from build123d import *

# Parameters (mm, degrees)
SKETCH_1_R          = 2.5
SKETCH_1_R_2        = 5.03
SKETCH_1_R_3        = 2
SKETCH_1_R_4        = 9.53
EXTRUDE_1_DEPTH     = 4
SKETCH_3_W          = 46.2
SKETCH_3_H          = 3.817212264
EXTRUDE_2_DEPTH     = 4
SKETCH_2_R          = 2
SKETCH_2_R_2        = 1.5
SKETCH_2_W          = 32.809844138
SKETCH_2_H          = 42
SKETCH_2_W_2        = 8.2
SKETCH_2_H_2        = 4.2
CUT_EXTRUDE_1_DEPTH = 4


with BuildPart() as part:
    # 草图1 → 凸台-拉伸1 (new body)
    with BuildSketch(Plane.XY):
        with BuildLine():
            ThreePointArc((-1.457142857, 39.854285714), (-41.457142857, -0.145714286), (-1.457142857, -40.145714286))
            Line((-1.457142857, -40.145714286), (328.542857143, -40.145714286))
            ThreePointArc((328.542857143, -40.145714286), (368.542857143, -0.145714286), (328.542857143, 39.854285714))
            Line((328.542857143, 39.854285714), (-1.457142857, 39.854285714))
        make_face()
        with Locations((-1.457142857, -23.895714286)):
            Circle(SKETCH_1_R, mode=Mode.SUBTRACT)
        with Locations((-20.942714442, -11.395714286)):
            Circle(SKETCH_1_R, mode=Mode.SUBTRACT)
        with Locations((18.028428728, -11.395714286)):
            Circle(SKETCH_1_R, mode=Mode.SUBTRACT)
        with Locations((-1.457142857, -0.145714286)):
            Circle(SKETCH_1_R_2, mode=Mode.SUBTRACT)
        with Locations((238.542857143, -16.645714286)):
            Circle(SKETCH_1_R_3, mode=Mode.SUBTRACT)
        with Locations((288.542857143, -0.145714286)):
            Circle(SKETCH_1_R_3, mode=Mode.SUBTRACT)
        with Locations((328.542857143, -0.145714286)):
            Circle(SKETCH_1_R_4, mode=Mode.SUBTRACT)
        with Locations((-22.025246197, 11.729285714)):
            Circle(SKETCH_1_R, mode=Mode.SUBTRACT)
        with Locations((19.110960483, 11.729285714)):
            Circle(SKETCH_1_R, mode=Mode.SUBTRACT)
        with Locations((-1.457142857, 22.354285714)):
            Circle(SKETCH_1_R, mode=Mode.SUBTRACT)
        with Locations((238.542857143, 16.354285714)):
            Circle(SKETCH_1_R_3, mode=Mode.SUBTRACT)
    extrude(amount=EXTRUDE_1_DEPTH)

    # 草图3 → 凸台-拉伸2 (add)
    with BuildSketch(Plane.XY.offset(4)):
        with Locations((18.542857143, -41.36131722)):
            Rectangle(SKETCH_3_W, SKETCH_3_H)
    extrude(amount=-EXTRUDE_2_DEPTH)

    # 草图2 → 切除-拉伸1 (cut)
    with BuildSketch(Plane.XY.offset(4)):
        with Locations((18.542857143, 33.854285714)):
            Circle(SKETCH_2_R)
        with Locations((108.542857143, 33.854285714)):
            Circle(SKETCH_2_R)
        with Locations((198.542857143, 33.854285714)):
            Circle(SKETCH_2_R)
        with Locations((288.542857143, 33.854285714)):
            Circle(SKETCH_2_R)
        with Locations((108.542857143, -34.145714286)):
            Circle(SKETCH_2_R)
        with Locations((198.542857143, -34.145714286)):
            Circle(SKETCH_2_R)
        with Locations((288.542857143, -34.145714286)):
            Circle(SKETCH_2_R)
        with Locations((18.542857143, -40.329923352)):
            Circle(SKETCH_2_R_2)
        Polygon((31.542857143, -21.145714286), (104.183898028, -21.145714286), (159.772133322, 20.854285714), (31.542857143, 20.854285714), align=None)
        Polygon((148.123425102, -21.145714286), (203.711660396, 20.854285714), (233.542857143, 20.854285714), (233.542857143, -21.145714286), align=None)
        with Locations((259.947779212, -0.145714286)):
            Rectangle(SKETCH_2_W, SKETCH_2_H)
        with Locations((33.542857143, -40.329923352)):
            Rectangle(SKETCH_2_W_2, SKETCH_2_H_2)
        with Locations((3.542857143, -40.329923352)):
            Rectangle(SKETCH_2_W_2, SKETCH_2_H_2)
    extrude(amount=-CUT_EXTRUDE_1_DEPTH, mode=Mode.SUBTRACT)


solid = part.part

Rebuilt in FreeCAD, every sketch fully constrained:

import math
import FreeCAD as App
import Part
import Sketcher
Q = App.Units.Quantity


def add_polygon(sketch, points):
    """Adds a closed chain of lines whose ends are joined by coincident constraints."""
    first, n = sketch.GeometryCount, len(points)
    for a, b in zip(points, points[1:] + points[:1]):
        sketch.addGeometry(Part.LineSegment(App.Vector(*a, 0), App.Vector(*b, 0)), False)
    for i in range(n):
        sketch.addConstraint(Sketcher.Constraint("Coincident", first + i, 2, first + (i + 1) % n, 1))

doc = App.newDocument("Part")
params = doc.addObject("Spreadsheet::Sheet", "Params")
for row, (alias, value) in enumerate([
    ("sketch1_diameter", "5 mm"),
    ("sketch1_diameter2", "4 mm"),
    ("sketch1_radius", "40 mm"),
    ("sketch1_diameter3", "10.06 mm"),
    ("sketch1_diameter4", "19.06 mm"),
    ("pad1_length", "4 mm"),
    ("sketch2_width", "46.2 mm"),
    ("pad2_length", "4 mm"),
    ("sketch3_diameter", "4 mm"),
    ("sketch3_diameter2", "3 mm"),
    ("sketch3_height", "42 mm"),
    ("sketch3_width", "8.2 mm"),
    ("sketch3_height2", "4.2 mm"),
    ("pocket1_length", "4 mm"),
], start=1):
    params.set(f"A{row}", alias)
    params.set(f"B{row}", "=" + value)
    params.setAlias(f"B{row}", alias)

body = doc.addObject("PartDesign::Body", "Body")

# Sketch on XY plane
sketch1 = body.newObject("Sketcher::SketchObject", "Sketch")
sketch1.AttachmentSupport = (doc.getObject("XY_Plane"), [""])
sketch1.MapMode = "FlatFace"
sketch1.addGeometry([
    Part.ArcOfCircle(Part.Circle(App.Vector(-1.5, -0.1, 0), App.Vector(0, 0, 1), 40), math.radians(90), math.radians(270)),  # 0
    Part.LineSegment(App.Vector(-1.5, -40.1, 0), App.Vector(328.5, -40.1, 0)),  # 1
    Part.ArcOfCircle(Part.Circle(App.Vector(328.5, -0.1, 0), App.Vector(0, 0, 1), 40), math.radians(-90), math.radians(90)),  # 2
    Part.LineSegment(App.Vector(328.5, 39.9, 0), App.Vector(-1.5, 39.9, 0)),  # 3
    Part.Circle(App.Vector(-1.5, -23.9, 0), App.Vector(0, 0, 1), 2.5),  # 4
    Part.Circle(App.Vector(-20.9, -11.4, 0), App.Vector(0, 0, 1), 2.5),  # 5
    Part.Circle(App.Vector(18, -11.4, 0), App.Vector(0, 0, 1), 2.5),  # 6
    Part.Circle(App.Vector(238.5, -16.6, 0), App.Vector(0, 0, 1), 2),  # 7
    Part.Circle(App.Vector(-1.5, -0.1, 0), App.Vector(0, 0, 1), 5),  # 8
    Part.Circle(App.Vector(-22, 11.7, 0), App.Vector(0, 0, 1), 2.5),  # 9
    Part.Circle(App.Vector(19.1, 11.7, 0), App.Vector(0, 0, 1), 2.5),  # 10
    Part.Circle(App.Vector(-1.5, 22.4, 0), App.Vector(0, 0, 1), 2.5),  # 11
    Part.Circle(App.Vector(288.5, -0.1, 0), App.Vector(0, 0, 1), 2),  # 12
    Part.Circle(App.Vector(328.5, -0.1, 0), App.Vector(0, 0, 1), 9.5),  # 13
    Part.Circle(App.Vector(238.5, 16.4, 0), App.Vector(0, 0, 1), 2),  # 14
], False)
sketch1.addConstraint([
    Sketcher.Constraint("Tangent", 0, 2, 1, 1),
    Sketcher.Constraint("Tangent", 1, 2, 2, 1),
    Sketcher.Constraint("Tangent", 2, 2, 3, 1),
    Sketcher.Constraint("Tangent", 3, 2, 0, 1),
    Sketcher.Constraint("Horizontal", 1),
    Sketcher.Constraint("Horizontal", 3),
    Sketcher.Constraint("Coincident", 8, 3, 0, 3),
    Sketcher.Constraint("Coincident", 13, 3, 2, 3),
    Sketcher.Constraint("Equal", 4, 5),
    Sketcher.Constraint("Equal", 5, 6),
    Sketcher.Constraint("Equal", 6, 9),
    Sketcher.Constraint("Equal", 9, 10),
    Sketcher.Constraint("Equal", 10, 11),
    Sketcher.Constraint("Equal", 7, 12),
    Sketcher.Constraint("Equal", 12, 14),
    Sketcher.Constraint("Horizontal", 5, 3, 6, 3),
    Sketcher.Constraint("Horizontal", 9, 3, 10, 3),
    Sketcher.Constraint("Horizontal", 8, 3, 12, 3),
    Sketcher.Constraint("Vertical", 0, 3, 4, 3),
    Sketcher.Constraint("Vertical", 8, 3, 11, 3),
    Sketcher.Constraint("Vertical", 7, 3, 14, 3),
    Sketcher.Constraint("Diameter", 4, Q("5 mm")),
    Sketcher.Constraint("Diameter", 7, Q("4 mm")),
    Sketcher.Constraint("Radius", 0, Q("40 mm")),
    Sketcher.Constraint("Diameter", 8, Q("10.06 mm")),
    Sketcher.Constraint("Diameter", 13, Q("19.06 mm")),
    Sketcher.Constraint("DistanceX", 1, 1, 1, 2, Q("330 mm")),
    Sketcher.Constraint("DistanceX", 7, 3, 2, 3, Q("90 mm")),
    Sketcher.Constraint("DistanceX", 12, 3, 2, 3, Q("40 mm")),
    Sketcher.Constraint("DistanceY", 7, 3, 14, 3, Q("33 mm")),
    Sketcher.Constraint("DistanceY", 4, 3, 5, 3, Q("12.5 mm")),
    Sketcher.Constraint("DistanceY", 7, 3, 2, 3, Q("16.5 mm")),
    Sketcher.Constraint("DistanceY", 0, 3, 11, 3, Q("22.5 mm")),
    Sketcher.Constraint("DistanceY", 4, 3, 0, 3, Q("23.75 mm")),
    Sketcher.Constraint("DistanceY", 5, 3, 9, 3, Q("23.125 mm")),
    Sketcher.Constraint("DistanceX", -1, 1, 6, 3, Q("18.028429 mm")),
    Sketcher.Constraint("DistanceX", -1, 1, 10, 3, Q("19.11096 mm")),
    Sketcher.Constraint("DistanceX", 5, 3, 0, 3, Q("19.485572 mm")),
    Sketcher.Constraint("DistanceX", 0, 3, 6, 3, Q("19.485572 mm")),
    Sketcher.Constraint("DistanceX", 9, 3, 5, 3, Q("1.082532 mm")),
    Sketcher.Constraint("DistanceY", 0, 3, -1, 1, Q("0.145714 mm")),
])
sketch1.setExpression("Constraints[21]", "Params.sketch1_diameter")
sketch1.setExpression("Constraints[22]", "Params.sketch1_diameter2")
sketch1.setExpression("Constraints[23]", "Params.sketch1_radius")
sketch1.setExpression("Constraints[24]", "Params.sketch1_diameter3")
sketch1.setExpression("Constraints[25]", "Params.sketch1_diameter4")
pad1 = body.newObject("PartDesign::Pad", "Pad")
pad1.Profile = sketch1
pad1.setExpression("Length", "Params.pad1_length")

# Sketch on XY plane
sketch2 = body.newObject("Sketcher::SketchObject", "Sketch001")
sketch2.AttachmentSupport = (doc.getObject("XY_Plane"), [""])
sketch2.MapMode = "FlatFace"
sketch2.AttachmentOffset = App.Placement(App.Vector(0, 0, 4), App.Rotation())
add_polygon(sketch2, [(-4.6, -39.5), (-4.6, -43.3), (41.6, -43.3), (41.6, -39.5)])  # lines 0-3
sketch2.addConstraint([
    Sketcher.Constraint("Vertical", 0),
    Sketcher.Constraint("Horizontal", 1),
    Sketcher.Constraint("Vertical", 2),
    Sketcher.Constraint("Horizontal", 3),
    Sketcher.Constraint("DistanceX", 1, 1, 1, 2, Q("46.2 mm")),
    Sketcher.Constraint("DistanceY", 0, 2, 0, 1, Q("3.817212 mm")),
    Sketcher.Constraint("DistanceY", 2, 2, -1, 1, Q("39.452711 mm")),
    Sketcher.Constraint("DistanceX", 0, 2, -1, 1, Q("4.557143 mm")),
])
sketch2.setExpression("Constraints[8]", "Params.sketch2_width")
pad2 = body.newObject("PartDesign::Pad", "Pad001")
pad2.Profile = sketch2
pad2.setExpression("Length", "Params.pad2_length")
pad2.Reversed = True

# Sketch on XY plane
sketch3 = body.newObject("Sketcher::SketchObject", "Sketch002")
sketch3.AttachmentSupport = (doc.getObject("XY_Plane"), [""])
sketch3.MapMode = "FlatFace"
sketch3.AttachmentOffset = App.Placement(App.Vector(0, 0, 4), App.Rotation())
sketch3.addGeometry(Part.Circle(App.Vector(18.5, 33.9, 0), App.Vector(0, 0, 1), 2), False)  # 0
sketch3.addGeometry(Part.Circle(App.Vector(108.5, 33.9, 0), App.Vector(0, 0, 1), 2), False)  # 1
sketch3.addGeometry(Part.Circle(App.Vector(198.5, 33.9, 0), App.Vector(0, 0, 1), 2), False)  # 2
sketch3.addGeometry(Part.Circle(App.Vector(288.5, 33.9, 0), App.Vector(0, 0, 1), 2), False)  # 3
sketch3.addGeometry(Part.Circle(App.Vector(108.5, -34.1, 0), App.Vector(0, 0, 1), 2), False)  # 4
sketch3.addGeometry(Part.Circle(App.Vector(198.5, -34.1, 0), App.Vector(0, 0, 1), 2), False)  # 5
sketch3.addGeometry(Part.Circle(App.Vector(288.5, -34.1, 0), App.Vector(0, 0, 1), 2), False)  # 6
sketch3.addGeometry(Part.Circle(App.Vector(18.5, -40.3, 0), App.Vector(0, 0, 1), 1.5), False)  # 7
add_polygon(sketch3, [(31.5, -21.1), (104.2, -21.1), (159.8, 20.9), (31.5, 20.9)])  # lines 8-11
add_polygon(sketch3, [(203.7, 20.9), (148.1, -21.1), (233.5, -21.1), (233.5, 20.9)])  # lines 12-15
add_polygon(sketch3, [(243.5, 20.9), (243.5, -21.1), (276.4, -21.1), (276.4, 20.9)])  # lines 16-19
add_polygon(sketch3, [(29.4, -38.2), (29.4, -42.4), (37.6, -42.4), (37.6, -38.2)])  # lines 20-23
add_polygon(sketch3, [(-0.6, -38.2), (-0.6, -42.4), (7.6, -42.4), (7.6, -38.2)])  # lines 24-27
sketch3.addConstraint([
    Sketcher.Constraint("Horizontal", 8),
    Sketcher.Constraint("Horizontal", 10),
    Sketcher.Constraint("Vertical", 11),
    Sketcher.Constraint("Horizontal", 13),
    Sketcher.Constraint("Vertical", 14),
    Sketcher.Constraint("Horizontal", 15),
    Sketcher.Constraint("Vertical", 16),
    Sketcher.Constraint("Horizontal", 17),
    Sketcher.Constraint("Vertical", 18),
    Sketcher.Constraint("Horizontal", 19),
    Sketcher.Constraint("Vertical", 20),
    Sketcher.Constraint("Horizontal", 21),
    Sketcher.Constraint("Vertical", 22),
    Sketcher.Constraint("Horizontal", 23),
    Sketcher.Constraint("Vertical", 24),
    Sketcher.Constraint("Horizontal", 25),
    Sketcher.Constraint("Vertical", 26),
    Sketcher.Constraint("Horizontal", 27),
    Sketcher.Constraint("Equal", 0, 1),
    Sketcher.Constraint("Equal", 1, 2),
    Sketcher.Constraint("Equal", 2, 3),
    Sketcher.Constraint("Equal", 3, 4),
    Sketcher.Constraint("Equal", 4, 5),
    Sketcher.Constraint("Equal", 5, 6),
    Sketcher.Constraint("Parallel", 9, 12),
    Sketcher.Constraint("Horizontal", 0, 3, 1, 3),
    Sketcher.Constraint("Horizontal", 1, 3, 2, 3),
    Sketcher.Constraint("Horizontal", 2, 3, 3, 3),
    Sketcher.Constraint("Horizontal", 4, 3, 5, 3),
    Sketcher.Constraint("Horizontal", 5, 3, 6, 3),
    Sketcher.Constraint("Horizontal", 11, 2, 12, 2),
    Sketcher.Constraint("Horizontal", 10, 2, 14, 2),
    Sketcher.Constraint("Horizontal", 13, 2, 16, 2),
    Sketcher.Constraint("Horizontal", 15, 2, 18, 2),
    Sketcher.Constraint("Horizontal", 21, 2, 24, 2),
    Sketcher.Constraint("Horizontal", 23, 2, 26, 2),
    Sketcher.Constraint("Vertical", 1, 3, 4, 3),
    Sketcher.Constraint("Vertical", 2, 3, 5, 3),
    Sketcher.Constraint("Vertical", 3, 3, 6, 3),
    Sketcher.Constraint("Vertical", 0, 3, 7, 3),
    Sketcher.Constraint("Equal", 23, 25),
    Sketcher.Constraint("Diameter", 0, Q("4 mm")),
    Sketcher.Constraint("Diameter", 7, Q("3 mm")),
    Sketcher.Constraint("DistanceY", 11, 2, 11, 1, Q("42 mm")),
    Sketcher.Constraint("DistanceX", 21, 1, 21, 2, Q("8.2 mm")),
    Sketcher.Constraint("DistanceY", 20, 2, 20, 1, Q("4.2 mm")),
    Sketcher.Constraint("DistanceX", 0, 3, 1, 3, Q("90 mm")),
    Sketcher.Constraint("DistanceX", 1, 3, 2, 3, Q("90 mm")),
    Sketcher.Constraint("DistanceX", 2, 3, 3, 3, Q("90 mm")),
    Sketcher.Constraint("DistanceY", 4, 3, 1, 3, Q("68 mm")),
    Sketcher.Constraint("DistanceY", 4, 3, 8, 2, Q("13 mm")),
    Sketcher.Constraint("DistanceX", 0, 3, 10, 2, Q("13 mm")),
    Sketcher.Constraint("DistanceX", 5, 3, 13, 2, Q("35 mm")),
    Sketcher.Constraint("DistanceX", 13, 2, 16, 2, Q("10 mm")),
    Sketcher.Constraint("DistanceX", 24, 2, 20, 2, Q("30 mm")),
    Sketcher.Constraint("DistanceX", 7, 3, 20, 2, Q("10.9 mm")),
    Sketcher.Constraint("DistanceY", 20, 2, 7, 3, Q("2.1 mm")),
    Sketcher.Constraint("DistanceX", 8, 1, 8, 2, Q("72.641041 mm")),
    Sketcher.Constraint("DistanceX", -1, 1, 8, 2, Q("104.183898 mm")),
    Sketcher.Constraint("DistanceX", -1, 1, 17, 2, Q("276.352701 mm")),
    Sketcher.Constraint("DistanceX", 10, 2, 10, 1, Q("128.229276 mm")),
    Sketcher.Constraint("DistanceX", 13, 1, 13, 2, Q("85.419432 mm")),
    Sketcher.Constraint("DistanceY", 7, 3, 0, 3, Q("74.184209 mm")),
    Sketcher.Constraint("DistanceY", -1, 1, 0, 3, Q("33.854286 mm")),
])
sketch3.setExpression("Constraints[61]", "Params.sketch3_diameter")
sketch3.setExpression("Constraints[62]", "Params.sketch3_diameter2")
sketch3.setExpression("Constraints[63]", "Params.sketch3_height")
sketch3.setExpression("Constraints[64]", "Params.sketch3_width")
sketch3.setExpression("Constraints[65]", "Params.sketch3_height2")
pocket1 = body.newObject("PartDesign::Pocket", "Pocket")
pocket1.Profile = sketch3
pocket1.setExpression("Length", "Params.pocket1_length")

doc.recompute()
